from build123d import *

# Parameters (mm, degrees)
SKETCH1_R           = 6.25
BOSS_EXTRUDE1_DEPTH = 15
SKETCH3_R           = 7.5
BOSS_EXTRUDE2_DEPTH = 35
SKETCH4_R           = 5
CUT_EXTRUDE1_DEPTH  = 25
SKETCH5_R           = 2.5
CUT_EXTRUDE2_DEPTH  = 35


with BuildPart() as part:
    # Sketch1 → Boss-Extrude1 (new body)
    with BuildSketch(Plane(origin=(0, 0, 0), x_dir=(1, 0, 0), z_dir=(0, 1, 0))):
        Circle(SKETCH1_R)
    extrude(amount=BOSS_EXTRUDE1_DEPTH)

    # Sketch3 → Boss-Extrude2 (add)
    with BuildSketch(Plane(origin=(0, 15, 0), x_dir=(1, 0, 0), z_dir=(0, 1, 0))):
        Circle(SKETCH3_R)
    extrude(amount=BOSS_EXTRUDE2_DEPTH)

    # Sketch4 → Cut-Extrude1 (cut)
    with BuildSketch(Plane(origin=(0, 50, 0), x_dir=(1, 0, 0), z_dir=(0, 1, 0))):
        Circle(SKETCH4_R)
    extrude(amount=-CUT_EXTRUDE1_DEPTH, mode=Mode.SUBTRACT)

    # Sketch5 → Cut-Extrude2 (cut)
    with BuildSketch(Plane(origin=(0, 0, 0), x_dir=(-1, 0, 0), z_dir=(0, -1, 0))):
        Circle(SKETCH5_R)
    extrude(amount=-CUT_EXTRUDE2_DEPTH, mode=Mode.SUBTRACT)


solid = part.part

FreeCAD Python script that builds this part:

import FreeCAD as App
import Part
import Sketcher
from FreeCAD import Vector
Q = App.Units.Quantity

doc = App.newDocument("Part")
body = doc.addObject("PartDesign::Body", "Body")

sketch1 = body.newObject("Sketcher::SketchObject", "Sketch")
sketch1.AttachmentSupport = (doc.getObject("XZ_Plane"), [""])
sketch1.MapMode = "FlatFace"
sketch1.addGeometry(Part.Circle(Vector(0, 0, 0), Vector(0, 0, 1), 6), False)
sketch1.addConstraint(Sketcher.Constraint("Coincident", 0, 3, -1, 1))
sketch1.addConstraint(Sketcher.Constraint("Diameter", 0, Q("12.5 mm")))
pad1 = body.newObject("PartDesign::Pad", "Pad")
pad1.Profile = sketch1
pad1.Length = 15
pad1.Reversed = True

sketch2 = body.newObject("Sketcher::SketchObject", "Sketch001")
sketch2.AttachmentSupport = (doc.getObject("XZ_Plane"), [""])
sketch2.MapMode = "FlatFace"
sketch2.AttachmentOffset = App.Placement(Vector(0, 0, -15), App.Rotation())
sketch2.addGeometry(Part.Circle(Vector(0, 0, 0), Vector(0, 0, 1), 8), False)
sketch2.addConstraint(Sketcher.Constraint("Coincident", 0, 3, -1, 1))
sketch2.addConstraint(Sketcher.Constraint("Diameter", 0, Q("15 mm")))
pad2 = body.newObject("PartDesign::Pad", "Pad001")
pad2.Profile = sketch2
pad2.Length = 35
pad2.Reversed = True

sketch3 = body.newObject("Sketcher::SketchObject", "Sketch002")
sketch3.AttachmentSupport = (doc.getObject("XZ_Plane"), [""])
sketch3.MapMode = "FlatFace"
sketch3.AttachmentOffset = App.Placement(Vector(0, 0, -50), App.Rotation())
sketch3.addGeometry(Part.Circle(Vector(0, 0, 0), Vector(0, 0, 1), 5), False)
sketch3.addConstraint(Sketcher.Constraint("Coincident", 0, 3, -1, 1))
sketch3.addConstraint(Sketcher.Constraint("Diameter", 0, Q("10 mm")))
pocket1 = body.newObject("PartDesign::Pocket", "Pocket")
pocket1.Profile = sketch3
pocket1.Length = 25
pocket1.Reversed = True

sketch4 = body.newObject("Sketcher::SketchObject", "Sketch003")
sketch4.AttachmentSupport = (doc.getObject("XZ_Plane"), [""])
sketch4.MapMode = "FlatFace"
sketch4.addGeometry(Part.Circle(Vector(0, 0, 0), Vector(0, 0, 1), 2.5), False)
sketch4.addConstraint(Sketcher.Constraint("Coincident", 0, 3, -1, 1))
sketch4.addConstraint(Sketcher.Constraint("Diameter", 0, Q("5 mm")))
pocket2 = body.newObject("PartDesign::Pocket", "Pocket001")
pocket2.Profile = sketch4
pocket2.Length = 35

doc.recompute()
